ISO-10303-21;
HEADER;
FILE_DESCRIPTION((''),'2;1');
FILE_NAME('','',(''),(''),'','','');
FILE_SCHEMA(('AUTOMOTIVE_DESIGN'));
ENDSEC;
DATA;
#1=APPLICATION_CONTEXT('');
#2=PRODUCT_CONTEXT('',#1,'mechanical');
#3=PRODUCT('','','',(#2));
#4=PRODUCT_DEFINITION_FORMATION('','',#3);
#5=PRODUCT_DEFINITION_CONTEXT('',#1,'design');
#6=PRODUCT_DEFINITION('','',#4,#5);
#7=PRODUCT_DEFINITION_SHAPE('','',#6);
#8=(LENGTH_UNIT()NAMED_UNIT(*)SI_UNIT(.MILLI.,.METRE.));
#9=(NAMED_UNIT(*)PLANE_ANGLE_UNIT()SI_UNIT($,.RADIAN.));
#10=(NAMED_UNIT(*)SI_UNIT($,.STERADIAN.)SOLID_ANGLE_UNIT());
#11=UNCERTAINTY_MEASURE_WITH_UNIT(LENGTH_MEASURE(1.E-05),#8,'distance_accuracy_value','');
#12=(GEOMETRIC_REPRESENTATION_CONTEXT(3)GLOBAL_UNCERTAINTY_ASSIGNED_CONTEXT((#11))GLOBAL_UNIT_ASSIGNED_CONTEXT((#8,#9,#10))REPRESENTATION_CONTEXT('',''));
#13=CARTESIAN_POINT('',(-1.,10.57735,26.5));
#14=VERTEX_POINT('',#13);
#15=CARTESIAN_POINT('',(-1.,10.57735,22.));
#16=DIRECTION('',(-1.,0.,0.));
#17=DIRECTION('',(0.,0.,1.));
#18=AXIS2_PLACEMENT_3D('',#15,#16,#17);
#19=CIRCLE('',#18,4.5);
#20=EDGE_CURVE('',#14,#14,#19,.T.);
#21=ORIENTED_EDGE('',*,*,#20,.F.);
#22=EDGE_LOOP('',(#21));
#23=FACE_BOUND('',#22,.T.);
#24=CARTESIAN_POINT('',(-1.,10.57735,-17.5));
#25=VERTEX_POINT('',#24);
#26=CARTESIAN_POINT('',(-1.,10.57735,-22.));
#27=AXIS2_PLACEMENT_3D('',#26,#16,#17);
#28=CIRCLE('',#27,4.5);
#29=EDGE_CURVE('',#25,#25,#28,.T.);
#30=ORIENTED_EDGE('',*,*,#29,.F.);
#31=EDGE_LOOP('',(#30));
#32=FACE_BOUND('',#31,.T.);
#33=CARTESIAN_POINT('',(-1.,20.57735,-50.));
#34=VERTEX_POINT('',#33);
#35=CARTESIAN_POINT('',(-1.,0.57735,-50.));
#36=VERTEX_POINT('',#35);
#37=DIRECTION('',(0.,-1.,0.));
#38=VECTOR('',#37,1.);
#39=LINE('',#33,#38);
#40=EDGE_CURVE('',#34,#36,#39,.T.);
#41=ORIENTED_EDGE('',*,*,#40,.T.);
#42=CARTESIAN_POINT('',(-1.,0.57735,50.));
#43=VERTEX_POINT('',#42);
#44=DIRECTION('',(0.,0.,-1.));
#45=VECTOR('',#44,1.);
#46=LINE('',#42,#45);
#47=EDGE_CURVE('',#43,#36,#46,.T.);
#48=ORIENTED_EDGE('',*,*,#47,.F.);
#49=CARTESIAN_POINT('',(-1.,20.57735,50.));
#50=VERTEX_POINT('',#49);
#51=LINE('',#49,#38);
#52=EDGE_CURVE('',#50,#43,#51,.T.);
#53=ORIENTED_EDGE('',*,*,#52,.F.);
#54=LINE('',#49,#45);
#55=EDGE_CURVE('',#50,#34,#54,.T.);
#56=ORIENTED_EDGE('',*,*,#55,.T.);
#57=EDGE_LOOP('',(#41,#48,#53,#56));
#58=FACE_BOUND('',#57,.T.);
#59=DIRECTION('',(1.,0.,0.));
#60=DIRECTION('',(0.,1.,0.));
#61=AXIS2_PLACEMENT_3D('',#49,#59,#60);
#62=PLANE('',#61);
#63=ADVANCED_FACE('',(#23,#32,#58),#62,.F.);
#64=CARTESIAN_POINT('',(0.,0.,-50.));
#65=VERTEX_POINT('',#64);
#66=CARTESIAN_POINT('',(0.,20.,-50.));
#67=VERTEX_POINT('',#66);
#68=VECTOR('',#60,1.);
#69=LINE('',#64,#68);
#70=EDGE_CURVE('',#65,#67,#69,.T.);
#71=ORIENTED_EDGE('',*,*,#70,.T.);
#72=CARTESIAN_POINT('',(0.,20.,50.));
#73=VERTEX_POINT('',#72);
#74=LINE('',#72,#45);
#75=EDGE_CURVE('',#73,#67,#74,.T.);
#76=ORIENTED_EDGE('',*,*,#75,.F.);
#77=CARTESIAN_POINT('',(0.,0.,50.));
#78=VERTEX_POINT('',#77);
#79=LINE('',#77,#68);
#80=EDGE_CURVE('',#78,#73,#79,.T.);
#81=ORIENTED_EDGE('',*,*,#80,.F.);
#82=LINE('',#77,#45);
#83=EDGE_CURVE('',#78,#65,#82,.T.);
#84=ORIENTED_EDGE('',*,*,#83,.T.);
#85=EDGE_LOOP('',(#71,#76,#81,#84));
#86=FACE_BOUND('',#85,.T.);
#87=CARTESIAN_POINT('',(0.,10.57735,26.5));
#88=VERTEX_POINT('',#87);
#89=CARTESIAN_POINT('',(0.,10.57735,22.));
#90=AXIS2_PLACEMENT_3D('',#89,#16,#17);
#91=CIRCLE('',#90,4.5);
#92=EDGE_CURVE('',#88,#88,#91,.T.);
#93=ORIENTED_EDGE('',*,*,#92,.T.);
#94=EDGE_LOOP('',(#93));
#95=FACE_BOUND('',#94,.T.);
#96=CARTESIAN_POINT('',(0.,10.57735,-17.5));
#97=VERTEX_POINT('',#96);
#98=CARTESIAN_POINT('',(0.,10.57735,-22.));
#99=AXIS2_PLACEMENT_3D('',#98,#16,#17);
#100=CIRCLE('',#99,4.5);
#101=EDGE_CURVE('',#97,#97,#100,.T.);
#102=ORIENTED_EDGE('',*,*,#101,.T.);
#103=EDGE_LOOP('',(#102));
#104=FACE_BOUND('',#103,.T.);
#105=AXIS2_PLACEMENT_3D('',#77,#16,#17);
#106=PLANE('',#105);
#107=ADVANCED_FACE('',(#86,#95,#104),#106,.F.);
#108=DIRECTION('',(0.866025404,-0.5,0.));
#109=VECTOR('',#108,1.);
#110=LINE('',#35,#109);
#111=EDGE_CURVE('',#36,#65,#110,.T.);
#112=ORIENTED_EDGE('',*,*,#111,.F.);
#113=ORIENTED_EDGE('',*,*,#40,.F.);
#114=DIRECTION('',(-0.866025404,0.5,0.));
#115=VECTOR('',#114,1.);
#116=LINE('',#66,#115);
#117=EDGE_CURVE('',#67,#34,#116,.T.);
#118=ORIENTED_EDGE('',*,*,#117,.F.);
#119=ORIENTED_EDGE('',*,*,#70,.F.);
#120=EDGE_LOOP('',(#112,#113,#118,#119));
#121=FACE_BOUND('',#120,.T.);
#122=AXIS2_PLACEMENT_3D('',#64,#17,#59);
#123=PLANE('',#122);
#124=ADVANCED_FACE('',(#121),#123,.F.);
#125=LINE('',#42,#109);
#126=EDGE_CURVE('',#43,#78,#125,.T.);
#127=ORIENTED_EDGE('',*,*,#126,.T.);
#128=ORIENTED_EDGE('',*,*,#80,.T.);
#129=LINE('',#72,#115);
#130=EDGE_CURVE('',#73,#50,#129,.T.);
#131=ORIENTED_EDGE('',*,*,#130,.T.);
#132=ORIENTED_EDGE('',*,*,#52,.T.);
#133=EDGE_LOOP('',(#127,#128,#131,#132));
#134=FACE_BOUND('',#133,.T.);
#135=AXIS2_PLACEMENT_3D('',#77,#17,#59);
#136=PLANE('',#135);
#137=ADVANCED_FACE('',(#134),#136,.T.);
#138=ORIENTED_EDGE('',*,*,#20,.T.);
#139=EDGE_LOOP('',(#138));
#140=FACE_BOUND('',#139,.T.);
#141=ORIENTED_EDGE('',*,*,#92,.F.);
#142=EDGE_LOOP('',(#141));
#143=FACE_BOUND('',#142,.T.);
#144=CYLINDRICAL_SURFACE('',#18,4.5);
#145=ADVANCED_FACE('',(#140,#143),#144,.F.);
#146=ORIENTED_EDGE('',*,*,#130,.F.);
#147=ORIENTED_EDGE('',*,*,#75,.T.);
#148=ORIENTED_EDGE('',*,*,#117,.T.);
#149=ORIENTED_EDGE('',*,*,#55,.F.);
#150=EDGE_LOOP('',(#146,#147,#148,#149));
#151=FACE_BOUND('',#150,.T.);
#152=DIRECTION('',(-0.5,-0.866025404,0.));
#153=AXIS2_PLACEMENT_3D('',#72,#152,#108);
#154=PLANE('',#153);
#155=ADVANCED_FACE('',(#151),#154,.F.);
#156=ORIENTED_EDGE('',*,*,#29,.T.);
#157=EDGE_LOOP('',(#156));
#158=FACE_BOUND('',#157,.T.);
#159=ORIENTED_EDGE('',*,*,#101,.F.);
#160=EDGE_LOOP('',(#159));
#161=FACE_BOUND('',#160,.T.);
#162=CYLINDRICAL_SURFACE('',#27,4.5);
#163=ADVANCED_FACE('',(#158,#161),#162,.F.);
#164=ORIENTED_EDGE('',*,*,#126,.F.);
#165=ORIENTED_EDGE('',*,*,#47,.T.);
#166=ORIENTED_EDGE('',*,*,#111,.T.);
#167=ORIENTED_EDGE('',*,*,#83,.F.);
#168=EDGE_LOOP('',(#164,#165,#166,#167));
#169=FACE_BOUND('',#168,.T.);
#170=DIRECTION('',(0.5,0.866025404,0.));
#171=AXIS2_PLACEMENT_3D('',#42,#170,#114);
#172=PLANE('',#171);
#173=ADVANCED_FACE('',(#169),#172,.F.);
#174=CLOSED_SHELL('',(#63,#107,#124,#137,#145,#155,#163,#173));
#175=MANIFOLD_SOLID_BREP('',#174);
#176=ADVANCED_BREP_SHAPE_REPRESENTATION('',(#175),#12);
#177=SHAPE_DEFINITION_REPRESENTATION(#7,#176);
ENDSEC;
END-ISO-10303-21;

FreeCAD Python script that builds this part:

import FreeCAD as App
import Part
import Sketcher
Q = App.Units.Quantity


def add_polygon(sketch, points):
    """Adds a closed chain of lines whose ends are joined by coincident constraints."""
    first, n = sketch.GeometryCount, len(points)
    for a, b in zip(points, points[1:] + points[:1]):
        sketch.addGeometry(Part.LineSegment(App.Vector(*a, 0), App.Vector(*b, 0)), False)
    for i in range(n):
        sketch.addConstraint(Sketcher.Constraint("Coincident", first + i, 2, first + (i + 1) % n, 1))

doc = App.newDocument("Part")
body = doc.addObject("PartDesign::Body", "Body")

sketch1 = body.newObject("Sketcher::SketchObject", "Sketch")
sketch1.AttachmentSupport = (doc.getObject("XY_Plane"), [""])
sketch1.MapMode = "FlatFace"
add_polygon(sketch1, [(0, 0), (0, 20), (-1, 20.6), (-1, 0.6)])
sketch1.addConstraint(Sketcher.Constraint("Vertical", 0))
sketch1.addConstraint(Sketcher.Constraint("Vertical", 2))
sketch1.addConstraint(Sketcher.Constraint("Coincident", 3, 2, -1, 1))
sketch1.addConstraint(Sketcher.Constraint("Parallel", 1, 3))
sketch1.addConstraint(Sketcher.Constraint("DistanceY", 0, 1, 0, 2, 20.0))
sketch1.addConstraint(Sketcher.Constraint("Angle", 1, Q("150 deg")))
sketch1.addConstraint(Sketcher.Constraint("DistanceX", 1, 2, -1, 1, 1.0))
pad1 = body.newObject("PartDesign::Pad", "Pad")
pad1.Profile = sketch1
pad1.Length = 100
pad1.Midplane = True

sketch2 = body.newObject("Sketcher::SketchObject", "Sketch001")
sketch2.AttachmentSupport = (doc.getObject("YZ_Plane"), [""])
sketch2.MapMode = "FlatFace"
sketch2.AttachmentOffset = App.Placement(App.Vector(0, 0, -1), App.Rotation())
sketch2.addGeometry(Part.Circle(App.Vector(10.6, -22, 0), App.Vector(0, 0, 1), 4.5), False)
sketch2.addGeometry(Part.Circle(App.Vector(10.6, 22, 0), App.Vector(0, 0, 1), 4.5), False)
sketch2.addConstraint(Sketcher.Constraint("Equal", 0, 1))
sketch2.addConstraint(Sketcher.Constraint("Symmetric", 0, 3, 1, 3, -1))
sketch2.addConstraint(Sketcher.Constraint("Diameter", 0, 9.0))
sketch2.addConstraint(Sketcher.Constraint("DistanceY", 0, 3, -1, 1, 22.0))
sketch2.addConstraint(Sketcher.Constraint("DistanceX", -1, 1, 0, 3, 10.57735))
doc.recompute()
hole = body.newObject("PartDesign::Hole", "Hole")
hole.Profile = sketch2
hole.ThreadType = "None"
hole.Diameter = 9
hole.DepthType = "Dimension"
hole.Depth = 10
hole.DrillPoint = "Angled"
hole.DrillPointAngle = 118
hole.Reversed = True

doc.recompute()
